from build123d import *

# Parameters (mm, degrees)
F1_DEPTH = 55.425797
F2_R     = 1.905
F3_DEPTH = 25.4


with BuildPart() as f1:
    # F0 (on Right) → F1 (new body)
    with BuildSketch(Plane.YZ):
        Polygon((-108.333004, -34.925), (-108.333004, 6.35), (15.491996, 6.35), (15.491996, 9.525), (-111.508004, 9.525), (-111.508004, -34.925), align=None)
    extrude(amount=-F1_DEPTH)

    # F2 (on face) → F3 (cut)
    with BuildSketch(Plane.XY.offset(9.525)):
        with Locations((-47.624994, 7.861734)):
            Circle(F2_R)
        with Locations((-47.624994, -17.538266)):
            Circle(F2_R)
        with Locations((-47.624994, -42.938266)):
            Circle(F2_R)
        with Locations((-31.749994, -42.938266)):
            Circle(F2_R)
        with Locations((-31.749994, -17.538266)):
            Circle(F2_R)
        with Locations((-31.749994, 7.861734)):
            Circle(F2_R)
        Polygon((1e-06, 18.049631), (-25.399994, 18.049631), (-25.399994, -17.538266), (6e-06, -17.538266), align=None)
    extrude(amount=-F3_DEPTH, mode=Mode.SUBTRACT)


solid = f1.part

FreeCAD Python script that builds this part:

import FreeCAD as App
import Part
import Sketcher
from FreeCAD import Vector
Q = App.Units.Quantity


def add_polygon(sketch, points):
    """Adds a closed chain of lines whose ends are joined by coincident constraints."""
    first, n = sketch.GeometryCount, len(points)
    for a, b in zip(points, points[1:] + points[:1]):
        sketch.addGeometry(Part.LineSegment(App.Vector(*a, 0), App.Vector(*b, 0)), False)
    for i in range(n):
        sketch.addConstraint(Sketcher.Constraint("Coincident", first + i, 2, first + (i + 1) % n, 1))

doc = App.newDocument("Part")
params = doc.addObject("Spreadsheet::Sheet", "Params")
for row, (alias, value) in enumerate([
    ("sketch1_width", "5 in"),
    ("sketch1_height", "1.75 in"),
    ("sketch1_width2", "4.875 in"),
    ("pad1_length", "55.425797 mm"),
    ("sketch2_diameter", "0.15 in"),
    ("sketch2_width", "0.9999998 in"),
    ("sketch2_width2", "1 in"),
    ("pocket1_length", "1 in"),
], start=1):
    params.set(f"A{row}", alias)
    params.set(f"B{row}", "=" + value)
    params.setAlias(f"B{row}", alias)

body = doc.addObject("PartDesign::Body", "Body")

sketch1 = body.newObject("Sketcher::SketchObject", "Sketch")
sketch1.AttachmentSupport = (doc.getObject("YZ_Plane"), [""])
sketch1.MapMode = "FlatFace"
add_polygon(sketch1, [(-108.333004, -34.925), (-108.333004, 6.35), (15.491996, 6.35), (15.491996, 9.525), (-111.508004, 9.525), (-111.508004, -34.925)])
sketch1.addConstraint(Sketcher.Constraint("Vertical", 0))
sketch1.addConstraint(Sketcher.Constraint("Horizontal", 1))
sketch1.addConstraint(Sketcher.Constraint("Vertical", 2))
sketch1.addConstraint(Sketcher.Constraint("Horizontal", 3))
sketch1.addConstraint(Sketcher.Constraint("Vertical", 4))
sketch1.addConstraint(Sketcher.Constraint("Horizontal", 5))
sketch1.addConstraint(Sketcher.Constraint("Equal", 5, 2))
sketch1.addConstraint(Sketcher.Constraint("DistanceX", 3, 2, 3, 1, Q("5 in")))
sketch1.addConstraint(Sketcher.Constraint("DistanceY", 4, 2, 4, 1, Q("1.75 in")))
sketch1.addConstraint(Sketcher.Constraint("DistanceX", 1, 1, 1, 2, Q("4.875 in")))
sketch1.addConstraint(Sketcher.Constraint("DistanceY", -1, 1, 0, 2, Q("0.25 in")))
sketch1.addConstraint(Sketcher.Constraint("DistanceX", 0, 2, -1, 1, 108.333004))
sketch1.setExpression("Constraints[13]", "Params.sketch1_width")
sketch1.setExpression("Constraints[14]", "Params.sketch1_height")
sketch1.setExpression("Constraints[15]", "Params.sketch1_width2")
pad1 = body.newObject("PartDesign::Pad", "Pad")
pad1.Profile = sketch1
pad1.setExpression("Length", "Params.pad1_length")
pad1.Reversed = True

sketch2 = body.newObject("Sketcher::SketchObject", "Sketch001")
sketch2.AttachmentSupport = (doc.getObject("XY_Plane"), [""])
sketch2.MapMode = "FlatFace"
sketch2.AttachmentOffset = App.Placement(Vector(0, 0, 0.375 * 25.4), App.Rotation())
sketch2.addGeometry(Part.Circle(Vector(-47.624994, 7.861734, 0), Vector(0, 0, 1), 1.905), False)
sketch2.addGeometry(Part.Circle(Vector(-47.624994, -17.538266, 0), Vector(0, 0, 1), 1.905), False)
sketch2.addGeometry(Part.Circle(Vector(-47.624994, -42.938266, 0), Vector(0, 0, 1), 1.905), False)
sketch2.addGeometry(Part.Circle(Vector(-31.749994, -42.938266, 0), Vector(0, 0, 1), 1.905), False)
sketch2.addGeometry(Part.Circle(Vector(-31.749994, -17.538266, 0), Vector(0, 0, 1), 1.905), False)
sketch2.addGeometry(Part.Circle(Vector(-31.749994, 7.861734, 0), Vector(0, 0, 1), 1.905), False)
add_polygon(sketch2, [(0.000001, 18.049631), (-25.399994, 18.049631), (-25.399994, -17.538266), (0.000006, -17.538266)])
sketch2.addConstraint(Sketcher.Constraint("Horizontal", 6))
sketch2.addConstraint(Sketcher.Constraint("Vertical", 7))
sketch2.addConstraint(Sketcher.Constraint("Horizontal", 8))
sketch2.addConstraint(Sketcher.Constraint("Equal", 0, 1))
sketch2.addConstraint(Sketcher.Constraint("Equal", 1, 2))
sketch2.addConstraint(Sketcher.Constraint("Equal", 2, 3))
sketch2.addConstraint(Sketcher.Constraint("Equal", 3, 4))
sketch2.addConstraint(Sketcher.Constraint("Equal", 4, 5))
sketch2.addConstraint(Sketcher.Constraint("PointOnObject", 9, 2, -2))
sketch2.addConstraint(Sketcher.Constraint("Horizontal", 2, 3, 3, 3))
sketch2.addConstraint(Sketcher.Constraint("Horizontal", 1, 3, 4, 3))
sketch2.addConstraint(Sketcher.Constraint("Horizontal", 0, 3, 5, 3))
sketch2.addConstraint(Sketcher.Constraint("Horizontal", 4, 3, 7, 2))
sketch2.addConstraint(Sketcher.Constraint("Vertical", 0, 3, 1, 3))
sketch2.addConstraint(Sketcher.Constraint("Vertical", 1, 3, 2, 3))
sketch2.addConstraint(Sketcher.Constraint("Vertical", 3, 3, 4, 3))
sketch2.addConstraint(Sketcher.Constraint("Vertical", 4, 3, 5, 3))
sketch2.addConstraint(Sketcher.Constraint("Diameter", 0, Q("0.15 in")))
sketch2.addConstraint(Sketcher.Constraint("DistanceX", 6, 2, 6, 1, Q("0.9999998 in")))
sketch2.addConstraint(Sketcher.Constraint("DistanceX", 8, 1, 8, 2, Q("1 in")))
sketch2.addConstraint(Sketcher.Constraint("DistanceY", 1, 3, 0, 3, Q("1 in")))
sketch2.addConstraint(Sketcher.Constraint("DistanceY", 2, 3, 1, 3, Q("1 in")))
sketch2.addConstraint(Sketcher.Constraint("DistanceX", 5, 3, 6, 2, Q("0.25 in")))
sketch2.addConstraint(Sketcher.Constraint("DistanceX", 2, 3, 3, 3, Q("0.625 in")))
sketch2.addConstraint(Sketcher.Constraint("DistanceY", 7, 2, 7, 1, 35.587897))
sketch2.addConstraint(Sketcher.Constraint("DistanceY", -1, 1, 6, 2, 18.049631))
sketch2.setExpression("Constraints[21]", "Params.sketch2_diameter")
sketch2.setExpression("Constraints[22]", "Params.sketch2_width")
sketch2.setExpression("Constraints[23]", "Params.sketch2_width2")
pocket1 = body.newObject("PartDesign::Pocket", "Pocket")
pocket1.Profile = sketch2
pocket1.setExpression("Length", "Params.pocket1_length")

doc.recompute()
